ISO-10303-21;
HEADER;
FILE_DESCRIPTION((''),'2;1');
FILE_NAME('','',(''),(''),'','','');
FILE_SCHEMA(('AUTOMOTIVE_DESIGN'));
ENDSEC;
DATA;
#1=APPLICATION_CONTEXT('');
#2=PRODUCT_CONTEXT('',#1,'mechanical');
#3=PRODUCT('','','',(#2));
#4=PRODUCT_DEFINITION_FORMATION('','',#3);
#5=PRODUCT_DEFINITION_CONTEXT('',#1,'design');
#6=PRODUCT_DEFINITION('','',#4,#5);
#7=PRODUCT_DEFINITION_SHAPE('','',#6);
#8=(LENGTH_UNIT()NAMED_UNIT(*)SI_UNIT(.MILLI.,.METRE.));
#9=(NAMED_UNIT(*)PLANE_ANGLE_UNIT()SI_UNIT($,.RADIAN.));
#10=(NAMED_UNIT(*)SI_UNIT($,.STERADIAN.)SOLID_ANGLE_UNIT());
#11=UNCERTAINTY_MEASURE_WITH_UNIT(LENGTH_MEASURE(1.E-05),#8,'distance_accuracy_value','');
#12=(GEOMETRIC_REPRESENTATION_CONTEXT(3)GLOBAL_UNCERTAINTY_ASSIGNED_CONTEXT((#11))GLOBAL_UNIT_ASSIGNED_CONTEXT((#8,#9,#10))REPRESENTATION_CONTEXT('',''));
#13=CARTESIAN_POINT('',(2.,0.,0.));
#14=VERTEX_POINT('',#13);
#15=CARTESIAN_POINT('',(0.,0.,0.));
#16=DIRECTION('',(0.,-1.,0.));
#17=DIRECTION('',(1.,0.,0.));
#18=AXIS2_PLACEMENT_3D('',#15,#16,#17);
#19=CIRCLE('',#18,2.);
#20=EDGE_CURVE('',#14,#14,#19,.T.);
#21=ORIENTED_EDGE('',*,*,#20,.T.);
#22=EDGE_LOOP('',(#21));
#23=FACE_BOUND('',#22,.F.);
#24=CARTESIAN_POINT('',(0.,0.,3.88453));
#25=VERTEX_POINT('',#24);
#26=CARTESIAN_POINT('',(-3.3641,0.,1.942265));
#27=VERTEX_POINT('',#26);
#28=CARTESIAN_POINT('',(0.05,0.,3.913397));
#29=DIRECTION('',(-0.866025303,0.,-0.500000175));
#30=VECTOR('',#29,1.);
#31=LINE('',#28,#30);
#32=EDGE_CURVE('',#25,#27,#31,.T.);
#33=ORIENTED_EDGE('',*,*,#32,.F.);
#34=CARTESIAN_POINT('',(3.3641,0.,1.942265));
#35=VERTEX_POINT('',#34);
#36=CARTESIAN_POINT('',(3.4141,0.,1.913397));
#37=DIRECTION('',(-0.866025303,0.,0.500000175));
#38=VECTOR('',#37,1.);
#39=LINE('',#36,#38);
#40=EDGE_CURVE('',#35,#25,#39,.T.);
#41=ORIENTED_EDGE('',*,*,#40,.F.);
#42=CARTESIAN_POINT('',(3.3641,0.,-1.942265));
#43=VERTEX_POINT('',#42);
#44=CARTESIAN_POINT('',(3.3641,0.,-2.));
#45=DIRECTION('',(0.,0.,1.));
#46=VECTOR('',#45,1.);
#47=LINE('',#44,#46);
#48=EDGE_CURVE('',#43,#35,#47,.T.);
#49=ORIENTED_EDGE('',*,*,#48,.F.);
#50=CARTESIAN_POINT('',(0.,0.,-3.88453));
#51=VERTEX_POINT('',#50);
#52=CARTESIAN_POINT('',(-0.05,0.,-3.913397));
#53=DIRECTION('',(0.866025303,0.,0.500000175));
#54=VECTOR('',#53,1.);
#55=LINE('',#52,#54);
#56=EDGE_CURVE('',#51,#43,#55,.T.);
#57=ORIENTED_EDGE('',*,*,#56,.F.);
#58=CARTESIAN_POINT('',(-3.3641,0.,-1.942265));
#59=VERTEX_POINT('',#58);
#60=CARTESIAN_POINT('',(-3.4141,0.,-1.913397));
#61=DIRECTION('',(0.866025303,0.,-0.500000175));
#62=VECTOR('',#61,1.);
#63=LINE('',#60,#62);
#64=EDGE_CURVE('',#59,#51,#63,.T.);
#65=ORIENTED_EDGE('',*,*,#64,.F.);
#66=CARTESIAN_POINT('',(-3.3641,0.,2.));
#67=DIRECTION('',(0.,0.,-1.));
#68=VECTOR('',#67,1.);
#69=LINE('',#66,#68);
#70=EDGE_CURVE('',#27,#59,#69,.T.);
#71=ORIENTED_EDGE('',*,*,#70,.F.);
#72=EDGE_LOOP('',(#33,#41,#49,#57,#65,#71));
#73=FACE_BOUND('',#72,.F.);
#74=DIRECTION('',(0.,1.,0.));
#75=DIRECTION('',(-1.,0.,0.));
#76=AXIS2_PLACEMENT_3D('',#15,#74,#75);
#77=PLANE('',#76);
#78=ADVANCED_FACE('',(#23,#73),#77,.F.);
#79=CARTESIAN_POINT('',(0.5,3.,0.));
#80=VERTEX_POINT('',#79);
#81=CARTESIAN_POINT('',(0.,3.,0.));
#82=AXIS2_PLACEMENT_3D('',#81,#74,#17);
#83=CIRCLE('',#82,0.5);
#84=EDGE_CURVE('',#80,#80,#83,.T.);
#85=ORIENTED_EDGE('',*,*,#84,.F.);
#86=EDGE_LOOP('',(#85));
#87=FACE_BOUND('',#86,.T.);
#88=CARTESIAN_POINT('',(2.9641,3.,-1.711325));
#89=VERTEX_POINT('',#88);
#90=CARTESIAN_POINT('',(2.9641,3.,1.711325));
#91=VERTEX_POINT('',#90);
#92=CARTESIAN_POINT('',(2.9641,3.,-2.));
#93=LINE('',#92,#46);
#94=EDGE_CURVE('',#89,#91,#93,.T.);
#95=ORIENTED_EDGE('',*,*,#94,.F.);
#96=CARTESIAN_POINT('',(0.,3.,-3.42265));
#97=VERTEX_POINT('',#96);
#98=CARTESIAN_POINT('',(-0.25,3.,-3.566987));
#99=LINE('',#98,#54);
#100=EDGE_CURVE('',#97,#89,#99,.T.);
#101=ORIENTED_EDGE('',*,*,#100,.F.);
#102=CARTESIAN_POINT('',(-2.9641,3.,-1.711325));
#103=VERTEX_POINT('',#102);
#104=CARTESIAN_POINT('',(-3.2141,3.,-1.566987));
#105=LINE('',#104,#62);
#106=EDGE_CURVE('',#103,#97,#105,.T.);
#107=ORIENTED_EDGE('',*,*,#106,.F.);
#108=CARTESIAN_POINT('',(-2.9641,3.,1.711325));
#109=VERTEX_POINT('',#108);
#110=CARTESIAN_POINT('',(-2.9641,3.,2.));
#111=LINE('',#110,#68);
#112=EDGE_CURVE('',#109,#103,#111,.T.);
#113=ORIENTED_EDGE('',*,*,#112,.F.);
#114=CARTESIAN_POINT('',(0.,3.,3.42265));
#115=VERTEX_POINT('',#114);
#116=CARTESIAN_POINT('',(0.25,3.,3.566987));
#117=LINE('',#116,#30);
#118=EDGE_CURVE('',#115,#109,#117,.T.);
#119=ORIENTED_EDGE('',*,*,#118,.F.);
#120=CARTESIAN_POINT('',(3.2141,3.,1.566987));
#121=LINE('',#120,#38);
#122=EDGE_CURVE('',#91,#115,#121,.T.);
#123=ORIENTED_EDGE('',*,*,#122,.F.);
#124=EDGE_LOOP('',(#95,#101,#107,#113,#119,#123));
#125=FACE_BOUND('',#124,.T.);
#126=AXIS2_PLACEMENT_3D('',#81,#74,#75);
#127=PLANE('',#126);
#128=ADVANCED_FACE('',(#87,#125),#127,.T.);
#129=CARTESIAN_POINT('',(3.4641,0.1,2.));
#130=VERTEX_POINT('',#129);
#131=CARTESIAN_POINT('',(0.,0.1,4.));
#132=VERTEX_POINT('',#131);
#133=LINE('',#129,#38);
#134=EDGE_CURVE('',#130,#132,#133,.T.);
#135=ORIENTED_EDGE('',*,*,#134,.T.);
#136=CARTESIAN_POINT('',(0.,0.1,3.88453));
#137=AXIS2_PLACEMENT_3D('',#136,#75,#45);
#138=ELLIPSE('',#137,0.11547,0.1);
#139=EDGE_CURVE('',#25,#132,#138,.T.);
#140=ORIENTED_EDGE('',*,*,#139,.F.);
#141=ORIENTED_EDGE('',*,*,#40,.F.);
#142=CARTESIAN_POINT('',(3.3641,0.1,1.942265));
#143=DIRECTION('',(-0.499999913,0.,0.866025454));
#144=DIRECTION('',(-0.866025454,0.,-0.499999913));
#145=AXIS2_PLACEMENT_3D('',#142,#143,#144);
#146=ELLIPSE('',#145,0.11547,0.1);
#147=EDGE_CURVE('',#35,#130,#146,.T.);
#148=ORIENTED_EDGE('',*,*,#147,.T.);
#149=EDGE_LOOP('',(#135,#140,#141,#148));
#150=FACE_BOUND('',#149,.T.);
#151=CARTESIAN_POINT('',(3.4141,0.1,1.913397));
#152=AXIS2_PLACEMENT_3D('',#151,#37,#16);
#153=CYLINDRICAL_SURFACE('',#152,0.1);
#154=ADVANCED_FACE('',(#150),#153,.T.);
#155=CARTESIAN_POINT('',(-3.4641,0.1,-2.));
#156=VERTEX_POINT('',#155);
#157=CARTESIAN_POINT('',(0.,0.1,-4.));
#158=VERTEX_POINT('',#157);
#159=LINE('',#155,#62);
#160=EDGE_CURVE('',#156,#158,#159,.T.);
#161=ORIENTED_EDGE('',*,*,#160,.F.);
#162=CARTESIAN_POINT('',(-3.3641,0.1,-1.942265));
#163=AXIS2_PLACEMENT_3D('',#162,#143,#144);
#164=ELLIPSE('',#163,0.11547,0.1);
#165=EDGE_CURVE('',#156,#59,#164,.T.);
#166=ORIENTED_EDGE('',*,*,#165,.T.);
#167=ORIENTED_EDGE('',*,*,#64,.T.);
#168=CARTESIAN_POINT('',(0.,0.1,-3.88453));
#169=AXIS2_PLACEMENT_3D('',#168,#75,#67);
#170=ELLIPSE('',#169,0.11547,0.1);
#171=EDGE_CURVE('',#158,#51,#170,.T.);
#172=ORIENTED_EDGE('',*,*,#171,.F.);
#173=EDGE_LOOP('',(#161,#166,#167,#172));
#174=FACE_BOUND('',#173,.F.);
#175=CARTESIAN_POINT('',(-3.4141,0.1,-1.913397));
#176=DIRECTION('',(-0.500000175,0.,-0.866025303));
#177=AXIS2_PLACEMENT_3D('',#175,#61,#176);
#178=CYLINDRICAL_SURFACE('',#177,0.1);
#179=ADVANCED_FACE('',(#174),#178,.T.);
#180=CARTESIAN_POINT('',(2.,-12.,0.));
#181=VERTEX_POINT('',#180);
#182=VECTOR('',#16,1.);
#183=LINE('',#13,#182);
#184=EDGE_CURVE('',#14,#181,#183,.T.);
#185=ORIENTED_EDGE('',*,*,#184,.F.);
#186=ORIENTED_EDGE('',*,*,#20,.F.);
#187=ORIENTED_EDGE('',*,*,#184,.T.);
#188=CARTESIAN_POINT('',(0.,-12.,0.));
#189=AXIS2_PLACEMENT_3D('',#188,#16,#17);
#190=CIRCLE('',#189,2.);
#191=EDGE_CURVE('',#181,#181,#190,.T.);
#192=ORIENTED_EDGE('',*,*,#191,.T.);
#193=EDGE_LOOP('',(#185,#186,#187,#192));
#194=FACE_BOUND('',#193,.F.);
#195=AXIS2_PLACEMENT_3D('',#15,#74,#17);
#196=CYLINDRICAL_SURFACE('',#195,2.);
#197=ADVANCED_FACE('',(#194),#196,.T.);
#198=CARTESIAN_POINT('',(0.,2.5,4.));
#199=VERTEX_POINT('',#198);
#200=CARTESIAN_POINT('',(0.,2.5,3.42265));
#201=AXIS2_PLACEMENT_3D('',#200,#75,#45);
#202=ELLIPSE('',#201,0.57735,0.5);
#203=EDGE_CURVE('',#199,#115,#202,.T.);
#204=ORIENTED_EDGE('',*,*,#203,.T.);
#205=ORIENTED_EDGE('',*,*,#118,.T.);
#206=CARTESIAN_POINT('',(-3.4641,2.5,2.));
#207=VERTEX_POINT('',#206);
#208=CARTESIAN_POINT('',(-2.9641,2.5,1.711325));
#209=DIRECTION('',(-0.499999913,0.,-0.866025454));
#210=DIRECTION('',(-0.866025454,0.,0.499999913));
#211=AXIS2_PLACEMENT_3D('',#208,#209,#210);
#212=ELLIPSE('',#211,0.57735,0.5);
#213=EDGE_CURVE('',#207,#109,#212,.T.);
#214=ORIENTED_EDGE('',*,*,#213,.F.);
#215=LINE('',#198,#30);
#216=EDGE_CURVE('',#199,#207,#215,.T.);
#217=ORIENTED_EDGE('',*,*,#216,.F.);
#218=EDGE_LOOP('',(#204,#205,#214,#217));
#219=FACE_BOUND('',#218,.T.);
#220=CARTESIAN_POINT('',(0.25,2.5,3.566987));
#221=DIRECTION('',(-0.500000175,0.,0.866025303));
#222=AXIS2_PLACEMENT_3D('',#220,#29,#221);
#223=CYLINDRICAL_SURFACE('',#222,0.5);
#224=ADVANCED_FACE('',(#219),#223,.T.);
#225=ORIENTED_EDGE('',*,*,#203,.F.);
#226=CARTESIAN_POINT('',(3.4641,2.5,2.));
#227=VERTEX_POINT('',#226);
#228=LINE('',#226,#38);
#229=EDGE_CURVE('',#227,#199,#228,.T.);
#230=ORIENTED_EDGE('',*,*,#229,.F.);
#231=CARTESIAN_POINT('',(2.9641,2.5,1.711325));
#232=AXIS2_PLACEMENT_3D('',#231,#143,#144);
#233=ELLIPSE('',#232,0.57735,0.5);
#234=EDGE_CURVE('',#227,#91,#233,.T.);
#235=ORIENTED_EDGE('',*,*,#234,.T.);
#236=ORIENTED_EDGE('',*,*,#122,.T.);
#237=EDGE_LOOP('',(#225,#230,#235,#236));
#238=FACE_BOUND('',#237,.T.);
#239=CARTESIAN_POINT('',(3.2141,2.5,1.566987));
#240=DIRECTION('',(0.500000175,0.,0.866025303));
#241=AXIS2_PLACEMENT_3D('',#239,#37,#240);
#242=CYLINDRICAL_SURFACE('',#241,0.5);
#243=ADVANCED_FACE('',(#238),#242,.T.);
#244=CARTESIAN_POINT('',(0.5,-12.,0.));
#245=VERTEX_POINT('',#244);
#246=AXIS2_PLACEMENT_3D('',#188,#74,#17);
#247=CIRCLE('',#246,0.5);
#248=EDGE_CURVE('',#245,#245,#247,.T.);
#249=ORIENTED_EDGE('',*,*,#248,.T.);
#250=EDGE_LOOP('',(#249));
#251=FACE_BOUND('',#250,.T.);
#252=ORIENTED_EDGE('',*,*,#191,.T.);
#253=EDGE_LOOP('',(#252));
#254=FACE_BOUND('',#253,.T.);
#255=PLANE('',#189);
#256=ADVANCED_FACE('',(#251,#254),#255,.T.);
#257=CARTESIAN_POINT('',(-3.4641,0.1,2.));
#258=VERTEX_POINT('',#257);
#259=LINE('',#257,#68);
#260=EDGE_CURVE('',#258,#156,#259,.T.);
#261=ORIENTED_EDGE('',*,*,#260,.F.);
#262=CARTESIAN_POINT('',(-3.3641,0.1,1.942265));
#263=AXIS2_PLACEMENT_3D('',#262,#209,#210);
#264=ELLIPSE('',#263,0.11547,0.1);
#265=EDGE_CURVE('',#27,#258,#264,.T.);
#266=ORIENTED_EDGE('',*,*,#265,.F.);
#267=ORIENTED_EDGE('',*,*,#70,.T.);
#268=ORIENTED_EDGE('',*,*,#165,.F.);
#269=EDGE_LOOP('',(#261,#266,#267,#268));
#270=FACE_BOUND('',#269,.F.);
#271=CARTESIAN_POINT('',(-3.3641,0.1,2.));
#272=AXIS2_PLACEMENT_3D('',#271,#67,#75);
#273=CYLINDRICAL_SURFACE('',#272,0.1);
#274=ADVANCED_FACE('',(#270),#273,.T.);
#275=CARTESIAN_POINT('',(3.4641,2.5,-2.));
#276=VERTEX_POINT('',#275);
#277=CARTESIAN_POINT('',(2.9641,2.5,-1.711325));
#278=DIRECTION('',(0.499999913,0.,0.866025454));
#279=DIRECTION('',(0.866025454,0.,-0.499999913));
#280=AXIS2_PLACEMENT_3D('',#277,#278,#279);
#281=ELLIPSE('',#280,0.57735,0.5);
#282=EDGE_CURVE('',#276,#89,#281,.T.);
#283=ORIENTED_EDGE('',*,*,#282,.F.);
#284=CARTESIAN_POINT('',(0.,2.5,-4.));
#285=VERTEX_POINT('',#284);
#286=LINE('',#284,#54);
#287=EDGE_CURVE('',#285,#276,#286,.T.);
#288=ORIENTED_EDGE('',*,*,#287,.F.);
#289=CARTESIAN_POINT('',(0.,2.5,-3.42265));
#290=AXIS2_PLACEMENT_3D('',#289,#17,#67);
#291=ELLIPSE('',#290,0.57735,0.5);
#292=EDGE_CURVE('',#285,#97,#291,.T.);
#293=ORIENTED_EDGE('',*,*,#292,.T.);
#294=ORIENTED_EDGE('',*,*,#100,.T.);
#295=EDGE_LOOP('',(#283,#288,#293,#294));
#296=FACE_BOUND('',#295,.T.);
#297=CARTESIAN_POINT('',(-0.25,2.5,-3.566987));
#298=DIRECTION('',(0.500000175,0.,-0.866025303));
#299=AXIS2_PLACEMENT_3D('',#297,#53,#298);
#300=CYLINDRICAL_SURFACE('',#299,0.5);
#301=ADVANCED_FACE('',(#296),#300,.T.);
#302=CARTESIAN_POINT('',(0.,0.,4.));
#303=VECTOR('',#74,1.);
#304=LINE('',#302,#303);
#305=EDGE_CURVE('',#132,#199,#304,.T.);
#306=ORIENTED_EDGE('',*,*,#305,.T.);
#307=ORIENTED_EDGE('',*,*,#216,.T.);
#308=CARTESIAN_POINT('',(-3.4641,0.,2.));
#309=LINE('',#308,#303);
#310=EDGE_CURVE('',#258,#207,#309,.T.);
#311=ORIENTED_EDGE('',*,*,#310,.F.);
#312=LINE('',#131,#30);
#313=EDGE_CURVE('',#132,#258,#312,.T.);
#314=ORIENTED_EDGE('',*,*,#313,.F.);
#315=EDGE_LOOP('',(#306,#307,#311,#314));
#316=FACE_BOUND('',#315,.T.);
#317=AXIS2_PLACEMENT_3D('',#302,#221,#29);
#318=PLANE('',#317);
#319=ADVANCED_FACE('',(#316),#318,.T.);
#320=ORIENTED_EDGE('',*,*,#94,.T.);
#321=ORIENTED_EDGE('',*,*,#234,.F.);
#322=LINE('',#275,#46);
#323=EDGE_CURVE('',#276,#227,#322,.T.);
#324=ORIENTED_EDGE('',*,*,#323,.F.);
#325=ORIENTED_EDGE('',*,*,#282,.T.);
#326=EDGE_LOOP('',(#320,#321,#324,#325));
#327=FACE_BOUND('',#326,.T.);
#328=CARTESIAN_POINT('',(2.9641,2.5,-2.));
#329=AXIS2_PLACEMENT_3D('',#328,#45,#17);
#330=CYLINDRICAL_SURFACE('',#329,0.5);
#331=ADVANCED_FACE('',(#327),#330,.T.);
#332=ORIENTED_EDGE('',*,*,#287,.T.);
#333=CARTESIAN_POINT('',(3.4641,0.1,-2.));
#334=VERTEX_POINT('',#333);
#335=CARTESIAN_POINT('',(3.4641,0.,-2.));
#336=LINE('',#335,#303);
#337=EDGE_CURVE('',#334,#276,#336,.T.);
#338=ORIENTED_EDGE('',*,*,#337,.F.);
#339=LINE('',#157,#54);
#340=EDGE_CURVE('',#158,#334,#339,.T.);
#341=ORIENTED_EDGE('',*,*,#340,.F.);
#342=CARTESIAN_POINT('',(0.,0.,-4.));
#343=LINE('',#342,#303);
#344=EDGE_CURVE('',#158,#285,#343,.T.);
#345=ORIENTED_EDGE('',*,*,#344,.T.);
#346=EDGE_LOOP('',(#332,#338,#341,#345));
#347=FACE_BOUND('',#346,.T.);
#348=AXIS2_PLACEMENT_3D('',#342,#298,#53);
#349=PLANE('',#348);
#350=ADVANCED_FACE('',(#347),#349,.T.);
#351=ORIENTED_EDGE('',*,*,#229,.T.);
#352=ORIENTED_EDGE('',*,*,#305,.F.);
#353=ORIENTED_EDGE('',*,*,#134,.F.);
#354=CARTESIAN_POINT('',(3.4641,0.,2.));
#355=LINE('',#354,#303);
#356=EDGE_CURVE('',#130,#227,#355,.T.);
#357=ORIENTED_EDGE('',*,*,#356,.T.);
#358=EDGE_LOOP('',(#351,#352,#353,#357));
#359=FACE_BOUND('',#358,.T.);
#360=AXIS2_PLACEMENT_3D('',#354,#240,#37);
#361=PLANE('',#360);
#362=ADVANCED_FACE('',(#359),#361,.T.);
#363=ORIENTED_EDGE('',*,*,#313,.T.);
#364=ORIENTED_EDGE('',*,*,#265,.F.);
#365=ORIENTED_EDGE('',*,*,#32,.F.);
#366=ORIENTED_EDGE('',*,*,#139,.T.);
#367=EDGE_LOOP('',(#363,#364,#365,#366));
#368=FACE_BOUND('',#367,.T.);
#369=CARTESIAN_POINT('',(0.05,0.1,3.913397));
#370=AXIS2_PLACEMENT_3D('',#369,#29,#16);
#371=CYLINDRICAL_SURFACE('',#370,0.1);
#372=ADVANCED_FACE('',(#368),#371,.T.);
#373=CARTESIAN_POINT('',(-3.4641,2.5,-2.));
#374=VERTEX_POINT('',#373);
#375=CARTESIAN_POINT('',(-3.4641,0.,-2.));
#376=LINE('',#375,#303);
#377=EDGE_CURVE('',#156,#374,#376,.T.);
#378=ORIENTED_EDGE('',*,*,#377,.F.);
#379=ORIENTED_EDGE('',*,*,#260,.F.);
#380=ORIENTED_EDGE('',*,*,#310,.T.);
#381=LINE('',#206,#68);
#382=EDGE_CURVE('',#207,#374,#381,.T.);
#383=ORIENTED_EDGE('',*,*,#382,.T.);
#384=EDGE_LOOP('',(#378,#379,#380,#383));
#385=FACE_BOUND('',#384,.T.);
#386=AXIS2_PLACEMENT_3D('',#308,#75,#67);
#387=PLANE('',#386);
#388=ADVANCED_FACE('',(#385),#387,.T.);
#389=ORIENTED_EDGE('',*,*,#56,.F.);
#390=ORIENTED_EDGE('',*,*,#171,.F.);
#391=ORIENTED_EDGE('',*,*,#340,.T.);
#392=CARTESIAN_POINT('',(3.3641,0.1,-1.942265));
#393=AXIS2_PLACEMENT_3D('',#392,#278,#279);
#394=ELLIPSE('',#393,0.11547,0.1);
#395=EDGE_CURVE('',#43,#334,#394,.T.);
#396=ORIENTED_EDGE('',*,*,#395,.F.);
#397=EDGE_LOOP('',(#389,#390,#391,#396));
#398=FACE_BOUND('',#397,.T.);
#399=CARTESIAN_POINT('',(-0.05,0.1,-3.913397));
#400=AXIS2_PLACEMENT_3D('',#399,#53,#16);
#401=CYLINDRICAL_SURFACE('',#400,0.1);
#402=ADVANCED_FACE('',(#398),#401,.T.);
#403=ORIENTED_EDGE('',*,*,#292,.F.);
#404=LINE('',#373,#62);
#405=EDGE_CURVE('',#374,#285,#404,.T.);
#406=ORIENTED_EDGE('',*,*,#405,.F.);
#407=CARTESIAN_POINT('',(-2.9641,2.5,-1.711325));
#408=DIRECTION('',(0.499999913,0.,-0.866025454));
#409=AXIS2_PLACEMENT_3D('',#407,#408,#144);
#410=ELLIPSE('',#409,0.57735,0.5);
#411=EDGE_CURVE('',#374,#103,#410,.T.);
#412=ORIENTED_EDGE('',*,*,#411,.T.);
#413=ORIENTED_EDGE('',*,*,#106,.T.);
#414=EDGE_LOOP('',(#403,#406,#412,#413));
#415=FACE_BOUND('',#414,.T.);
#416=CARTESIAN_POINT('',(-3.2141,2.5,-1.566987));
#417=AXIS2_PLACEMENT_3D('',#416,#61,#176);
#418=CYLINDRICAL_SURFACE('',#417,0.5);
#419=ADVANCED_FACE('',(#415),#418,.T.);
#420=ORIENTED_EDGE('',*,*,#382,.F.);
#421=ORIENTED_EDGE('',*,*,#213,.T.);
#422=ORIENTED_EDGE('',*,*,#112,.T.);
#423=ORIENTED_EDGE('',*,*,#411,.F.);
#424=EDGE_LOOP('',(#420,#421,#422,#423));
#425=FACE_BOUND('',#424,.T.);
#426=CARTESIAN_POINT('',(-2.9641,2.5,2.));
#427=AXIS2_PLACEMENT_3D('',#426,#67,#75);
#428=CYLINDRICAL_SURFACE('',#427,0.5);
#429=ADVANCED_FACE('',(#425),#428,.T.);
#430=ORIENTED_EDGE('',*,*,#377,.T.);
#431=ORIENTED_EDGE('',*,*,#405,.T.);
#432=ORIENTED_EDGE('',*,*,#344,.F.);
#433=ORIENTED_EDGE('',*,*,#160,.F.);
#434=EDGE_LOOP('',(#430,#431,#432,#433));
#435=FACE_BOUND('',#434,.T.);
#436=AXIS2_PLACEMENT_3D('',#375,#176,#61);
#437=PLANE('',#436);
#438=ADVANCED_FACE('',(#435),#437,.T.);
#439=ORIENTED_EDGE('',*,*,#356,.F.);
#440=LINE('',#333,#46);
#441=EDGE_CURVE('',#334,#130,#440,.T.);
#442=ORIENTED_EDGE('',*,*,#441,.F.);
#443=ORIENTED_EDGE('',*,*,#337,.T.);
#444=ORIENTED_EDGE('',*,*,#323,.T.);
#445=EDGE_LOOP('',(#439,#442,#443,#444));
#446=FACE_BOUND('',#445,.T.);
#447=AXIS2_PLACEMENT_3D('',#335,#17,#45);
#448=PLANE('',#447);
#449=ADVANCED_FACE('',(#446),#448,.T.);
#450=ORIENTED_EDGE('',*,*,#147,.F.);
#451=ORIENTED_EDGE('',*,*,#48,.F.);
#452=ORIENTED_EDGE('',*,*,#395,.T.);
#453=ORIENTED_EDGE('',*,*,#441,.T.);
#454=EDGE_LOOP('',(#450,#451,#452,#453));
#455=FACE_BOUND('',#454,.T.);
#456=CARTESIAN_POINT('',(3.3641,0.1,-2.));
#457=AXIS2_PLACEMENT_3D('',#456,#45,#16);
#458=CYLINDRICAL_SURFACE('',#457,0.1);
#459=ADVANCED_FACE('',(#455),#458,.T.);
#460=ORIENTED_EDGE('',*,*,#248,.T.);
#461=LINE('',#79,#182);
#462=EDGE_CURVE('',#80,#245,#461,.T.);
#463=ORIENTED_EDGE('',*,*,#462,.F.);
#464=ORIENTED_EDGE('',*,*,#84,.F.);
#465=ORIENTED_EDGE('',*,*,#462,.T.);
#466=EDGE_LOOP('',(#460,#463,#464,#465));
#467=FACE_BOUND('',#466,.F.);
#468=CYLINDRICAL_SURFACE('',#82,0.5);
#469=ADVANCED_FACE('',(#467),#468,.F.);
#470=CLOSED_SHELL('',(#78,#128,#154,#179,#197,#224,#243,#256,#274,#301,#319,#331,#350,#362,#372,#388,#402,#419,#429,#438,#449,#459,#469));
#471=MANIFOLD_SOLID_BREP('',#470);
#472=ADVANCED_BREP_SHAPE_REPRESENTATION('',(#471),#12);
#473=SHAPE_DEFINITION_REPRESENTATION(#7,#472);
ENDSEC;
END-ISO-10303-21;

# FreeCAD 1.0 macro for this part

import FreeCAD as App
import Part
import Sketcher

V = App.Vector
Q = App.Units.Quantity


def edges_at(feature, points):
    """Names of the edges that pass closest to the given points."""
    edges = feature.Shape.Edges
    near = lambda p: min(range(len(edges)), key=lambda i: edges[i].distToShape(Part.Vertex(*p))[0])
    return sorted({f"Edge{near(p) + 1}" for p in points})

doc = App.newDocument("Part")
params = doc.addObject("Spreadsheet::Sheet", "Params")
for row, (alias, value) in enumerate([
    ("sketch1_height", "4 mm"),
    ("pad1_length", "3 mm"),
    ("fillet_radius", "0.5 mm"),
    ("fillet2_radius", "0.1 mm"),
    ("sketch2_diameter", "4 mm"),
    ("pad2_length", "12 mm"),
    ("sketch3_diameter", "1 mm"),
], start=1):
    params.set(f"A{row}", alias)
    params.set(f"B{row}", "=" + value)
    params.setAlias(f"B{row}", alias)

body = doc.addObject("PartDesign::Body", "Body")

sketch1 = doc.addObject("Sketcher::SketchObject", "Sketch")
body.addObject(sketch1)
sketch1.AttachmentSupport = (doc.XZ_Plane, [""])
sketch1.MapMode = "FlatFace"
sketch1.addGeometry([
    Part.LineSegment(V(0, -4, 0), V(-3.5, -2, 0)),
    Part.LineSegment(V(-3.5, -2, 0), V(-3.5, 2, 0)),
    Part.LineSegment(V(-3.5, 2, 0), V(0, 4, 0)),
    Part.LineSegment(V(0, 4, 0), V(3.5, 2, 0)),
    Part.LineSegment(V(3.5, 2, 0), V(3.5, -2, 0)),
    Part.LineSegment(V(3.5, -2, 0), V(0, -4, 0)),
], False)
sketch1.addConstraint([
    Sketcher.Constraint("Coincident", 0, 2, 1, 1),
    Sketcher.Constraint("Coincident", 1, 2, 2, 1),
    Sketcher.Constraint("Coincident", 2, 2, 3, 1),
    Sketcher.Constraint("Coincident", 3, 2, 4, 1),
    Sketcher.Constraint("Coincident", 4, 2, 5, 1),
    Sketcher.Constraint("Coincident", 5, 2, 0, 1),
    Sketcher.Constraint("Vertical", 1),
    Sketcher.Constraint("Vertical", 4),
    Sketcher.Constraint("Symmetric", 0, 2, 3, 2, -1, 1),
    Sketcher.Constraint("Symmetric", 2, 2, 5, 2, -1, 1),
    Sketcher.Constraint("PointOnObject", 2, 2, -2),
    Sketcher.Constraint("Parallel", 2, 5),
    Sketcher.Constraint("Horizontal", 1, 2, 3, 2),
    Sketcher.Constraint("DistanceY", 5, 2, 2, 2, Q("8 mm")),
    Sketcher.Constraint("DistanceY", 1, 1, 1, 2, Q("4 mm")),
    Sketcher.Constraint("Angle", 0, Q("150 deg")),
])
sketch1.setExpression("Constraints[14]", "Params.sketch1_height")
pad1 = doc.addObject("PartDesign::Pad", "Pad")
body.addObject(pad1)
pad1.Profile = sketch1
pad1.setExpression("Length", "Params.pad1_length")
pad1.Reversed = True
doc.recompute()

fillet = doc.addObject("PartDesign::Fillet", "Fillet")
body.addObject(fillet)
fillet.Base = (pad1, edges_at(pad1, [
    (1.732, 3, 3),
    (-1.732, 3, 3),
    (-3.464, 3, 0),
    (-1.732, 3, -3),
    (1.732, 3, -3),
    (3.464, 3, 0),
]))
fillet.setExpression("Radius", "Params.fillet_radius")
doc.recompute()

fillet2 = doc.addObject("PartDesign::Fillet", "Fillet001")
body.addObject(fillet2)
fillet2.Base = (fillet, edges_at(fillet, [
    (1.732, 0, 3),
    (-1.732, 0, 3),
    (-3.464, 0, 0),
    (-1.732, 0, -3),
    (1.732, 0, -3),
    (3.464, 0, 0),
]))
fillet2.setExpression("Radius", "Params.fillet2_radius")

sketch2 = doc.addObject("Sketcher::SketchObject", "Sketch001")
body.addObject(sketch2)
sketch2.AttachmentSupport = (doc.XZ_Plane, [""])
sketch2.MapMode = "FlatFace"
sketch2.addGeometry(Part.Circle(V(0, 0, 0), V(0, 0, 1), 2), False)
sketch2.addConstraint([
    Sketcher.Constraint("Coincident", 0, 3, -1, 1),
    Sketcher.Constraint("Diameter", 0, Q("4 mm")),
])
sketch2.setExpression("Constraints[1]", "Params.sketch2_diameter")
pad2 = doc.addObject("PartDesign::Pad", "Pad001")
body.addObject(pad2)
pad2.Profile = sketch2
pad2.setExpression("Length", "Params.pad2_length")

sketch3 = doc.addObject("Sketcher::SketchObject", "Sketch002")
body.addObject(sketch3)
sketch3.AttachmentSupport = (doc.XZ_Plane, [""])
sketch3.MapMode = "FlatFace"
sketch3.AttachmentOffset = App.Placement(V(0, 0, -3), App.Rotation())
sketch3.addGeometry(Part.Circle(V(0, 0, 0), V(0, 0, 1), 0.5), False)
sketch3.addConstraint([
    Sketcher.Constraint("Coincident", 0, 3, -1, 1),
    Sketcher.Constraint("Diameter", 0, Q("1 mm")),
])
sketch3.setExpression("Constraints[1]", "Params.sketch3_diameter")
pocket1 = doc.addObject("PartDesign::Pocket", "Pocket")
body.addObject(pocket1)
pocket1.Profile = sketch3
pocket1.Type = "ThroughAll"
pocket1.Reversed = True

doc.recompute()
